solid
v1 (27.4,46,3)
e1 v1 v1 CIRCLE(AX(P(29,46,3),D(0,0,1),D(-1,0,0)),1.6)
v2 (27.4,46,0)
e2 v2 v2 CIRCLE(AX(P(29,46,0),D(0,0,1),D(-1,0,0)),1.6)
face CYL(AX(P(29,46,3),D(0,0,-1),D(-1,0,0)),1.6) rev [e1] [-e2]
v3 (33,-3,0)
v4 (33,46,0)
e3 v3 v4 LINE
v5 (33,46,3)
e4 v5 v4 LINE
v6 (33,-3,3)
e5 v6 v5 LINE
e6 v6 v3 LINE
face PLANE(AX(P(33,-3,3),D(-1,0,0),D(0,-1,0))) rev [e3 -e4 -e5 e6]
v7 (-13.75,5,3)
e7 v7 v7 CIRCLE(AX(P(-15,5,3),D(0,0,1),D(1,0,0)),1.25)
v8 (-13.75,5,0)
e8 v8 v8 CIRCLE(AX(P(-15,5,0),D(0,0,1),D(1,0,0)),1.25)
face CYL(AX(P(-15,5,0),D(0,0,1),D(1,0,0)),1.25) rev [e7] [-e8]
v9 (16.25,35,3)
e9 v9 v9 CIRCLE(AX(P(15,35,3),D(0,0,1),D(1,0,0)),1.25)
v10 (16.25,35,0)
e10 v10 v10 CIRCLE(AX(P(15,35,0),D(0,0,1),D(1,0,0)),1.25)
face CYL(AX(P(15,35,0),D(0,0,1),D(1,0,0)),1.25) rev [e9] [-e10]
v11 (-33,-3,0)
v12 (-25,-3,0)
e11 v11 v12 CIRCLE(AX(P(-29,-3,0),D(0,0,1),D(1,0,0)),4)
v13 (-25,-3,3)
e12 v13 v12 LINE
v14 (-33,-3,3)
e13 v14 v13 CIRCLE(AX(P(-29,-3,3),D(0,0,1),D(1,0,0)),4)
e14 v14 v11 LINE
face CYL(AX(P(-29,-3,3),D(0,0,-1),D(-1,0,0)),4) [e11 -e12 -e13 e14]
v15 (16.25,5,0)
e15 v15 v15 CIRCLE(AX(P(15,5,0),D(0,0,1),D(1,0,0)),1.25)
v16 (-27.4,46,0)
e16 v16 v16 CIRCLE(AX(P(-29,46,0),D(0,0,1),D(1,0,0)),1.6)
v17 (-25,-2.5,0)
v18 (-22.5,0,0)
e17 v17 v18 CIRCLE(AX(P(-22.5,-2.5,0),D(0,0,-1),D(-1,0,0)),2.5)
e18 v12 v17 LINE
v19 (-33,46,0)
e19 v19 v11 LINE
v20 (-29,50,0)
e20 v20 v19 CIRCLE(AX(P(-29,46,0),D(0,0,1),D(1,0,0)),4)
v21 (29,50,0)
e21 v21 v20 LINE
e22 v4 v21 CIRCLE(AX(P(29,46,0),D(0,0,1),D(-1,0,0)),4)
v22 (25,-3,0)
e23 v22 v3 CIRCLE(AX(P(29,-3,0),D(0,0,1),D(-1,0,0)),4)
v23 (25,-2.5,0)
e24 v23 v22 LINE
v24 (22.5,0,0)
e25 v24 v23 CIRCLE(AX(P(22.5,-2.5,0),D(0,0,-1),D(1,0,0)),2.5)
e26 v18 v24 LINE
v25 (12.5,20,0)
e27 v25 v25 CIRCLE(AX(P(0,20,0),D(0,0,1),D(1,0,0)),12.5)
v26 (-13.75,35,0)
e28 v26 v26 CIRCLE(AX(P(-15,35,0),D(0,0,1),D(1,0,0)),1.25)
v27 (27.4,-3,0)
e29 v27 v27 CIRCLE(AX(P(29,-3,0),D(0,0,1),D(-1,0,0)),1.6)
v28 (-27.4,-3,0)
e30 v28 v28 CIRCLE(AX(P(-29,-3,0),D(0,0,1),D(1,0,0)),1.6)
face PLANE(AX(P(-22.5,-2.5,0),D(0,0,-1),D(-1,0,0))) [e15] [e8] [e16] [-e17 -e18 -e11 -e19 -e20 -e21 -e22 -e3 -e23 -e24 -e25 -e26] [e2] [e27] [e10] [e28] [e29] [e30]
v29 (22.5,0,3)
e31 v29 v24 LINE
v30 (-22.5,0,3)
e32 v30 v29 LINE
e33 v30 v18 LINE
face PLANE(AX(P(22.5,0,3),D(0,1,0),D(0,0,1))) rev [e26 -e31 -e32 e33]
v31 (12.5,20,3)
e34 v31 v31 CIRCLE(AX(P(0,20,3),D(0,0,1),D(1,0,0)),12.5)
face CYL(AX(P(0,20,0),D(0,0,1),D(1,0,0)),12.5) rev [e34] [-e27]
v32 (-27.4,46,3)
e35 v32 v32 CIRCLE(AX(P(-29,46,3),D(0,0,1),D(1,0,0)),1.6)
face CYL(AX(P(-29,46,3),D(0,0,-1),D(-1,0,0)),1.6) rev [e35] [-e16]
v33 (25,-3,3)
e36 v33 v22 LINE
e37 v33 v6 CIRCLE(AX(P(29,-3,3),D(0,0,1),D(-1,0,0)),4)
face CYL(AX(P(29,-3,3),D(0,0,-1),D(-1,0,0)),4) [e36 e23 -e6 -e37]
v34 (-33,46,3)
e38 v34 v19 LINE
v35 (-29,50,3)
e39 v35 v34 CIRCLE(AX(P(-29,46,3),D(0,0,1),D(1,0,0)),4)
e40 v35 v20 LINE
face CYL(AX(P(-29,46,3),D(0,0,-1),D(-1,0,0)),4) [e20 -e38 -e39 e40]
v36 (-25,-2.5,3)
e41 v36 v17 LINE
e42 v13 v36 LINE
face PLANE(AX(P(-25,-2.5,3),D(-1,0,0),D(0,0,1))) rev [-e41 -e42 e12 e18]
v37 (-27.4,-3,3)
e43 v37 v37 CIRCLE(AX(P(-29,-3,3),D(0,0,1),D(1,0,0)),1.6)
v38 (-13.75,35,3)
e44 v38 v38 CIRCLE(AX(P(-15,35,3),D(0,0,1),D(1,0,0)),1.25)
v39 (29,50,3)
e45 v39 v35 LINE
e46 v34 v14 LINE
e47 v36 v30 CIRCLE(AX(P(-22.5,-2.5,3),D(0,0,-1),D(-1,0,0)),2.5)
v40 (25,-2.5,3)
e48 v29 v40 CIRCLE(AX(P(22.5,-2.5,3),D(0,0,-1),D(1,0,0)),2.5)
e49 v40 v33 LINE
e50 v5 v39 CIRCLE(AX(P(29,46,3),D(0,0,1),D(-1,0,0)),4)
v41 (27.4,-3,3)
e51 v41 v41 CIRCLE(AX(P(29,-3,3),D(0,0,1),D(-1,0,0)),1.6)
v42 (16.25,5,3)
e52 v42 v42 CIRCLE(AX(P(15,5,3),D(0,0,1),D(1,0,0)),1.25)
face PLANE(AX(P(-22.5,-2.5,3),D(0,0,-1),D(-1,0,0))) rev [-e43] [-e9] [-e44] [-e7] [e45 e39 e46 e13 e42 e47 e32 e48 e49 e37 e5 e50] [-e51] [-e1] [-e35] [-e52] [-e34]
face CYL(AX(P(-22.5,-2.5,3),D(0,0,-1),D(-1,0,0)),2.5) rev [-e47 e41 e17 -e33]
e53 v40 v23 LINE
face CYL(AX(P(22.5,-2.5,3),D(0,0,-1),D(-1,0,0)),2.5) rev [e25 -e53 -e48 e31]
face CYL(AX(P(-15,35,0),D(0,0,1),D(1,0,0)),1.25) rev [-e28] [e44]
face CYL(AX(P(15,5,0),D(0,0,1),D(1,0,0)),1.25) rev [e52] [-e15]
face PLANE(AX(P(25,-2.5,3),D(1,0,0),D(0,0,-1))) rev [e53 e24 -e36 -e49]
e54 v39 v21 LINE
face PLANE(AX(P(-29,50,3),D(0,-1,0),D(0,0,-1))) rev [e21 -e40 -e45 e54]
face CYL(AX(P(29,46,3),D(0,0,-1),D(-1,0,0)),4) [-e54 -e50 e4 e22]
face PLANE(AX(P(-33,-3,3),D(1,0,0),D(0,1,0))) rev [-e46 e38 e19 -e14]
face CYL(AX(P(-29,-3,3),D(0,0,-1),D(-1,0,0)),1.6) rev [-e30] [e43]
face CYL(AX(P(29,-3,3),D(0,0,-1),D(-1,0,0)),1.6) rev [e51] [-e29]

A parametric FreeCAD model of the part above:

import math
import FreeCAD as App
import Part
import Sketcher
from FreeCAD import Vector
Q = App.Units.Quantity

doc = App.newDocument("Part")
body = doc.addObject("PartDesign::Body", "Body")

sketch1 = doc.addObject("Sketcher::SketchObject", "Sketch")
body.addObject(sketch1)
sketch1.AttachmentSupport = (doc.XY_Plane, [""])
sketch1.MapMode = "FlatFace"
sketch1.addGeometry([
    Part.LineSegment(Vector(-22.5, 0, 0), Vector(22.5, 0, 0)),
    Part.ArcOfCircle(Part.Circle(Vector(22.5, -2.5, 0), Vector(0, 0, 1), 2.5), math.radians(0), math.radians(90)),
    Part.LineSegment(Vector(25, -2.5, 0), Vector(25, -3, 0)),
    Part.ArcOfCircle(Part.Circle(Vector(29, -3, 0), Vector(0, 0, 1), 4), math.radians(180), math.radians(360)),
    Part.LineSegment(Vector(33, -3, 0), Vector(33, 46, 0)),
    Part.ArcOfCircle(Part.Circle(Vector(29, 46, 0), Vector(0, 0, 1), 4), math.radians(0), math.radians(90)),
    Part.LineSegment(Vector(29, 50, 0), Vector(-29, 50, 0)),
    Part.ArcOfCircle(Part.Circle(Vector(-29, 46, 0), Vector(0, 0, 1), 4), math.radians(90), math.radians(180)),
    Part.LineSegment(Vector(-33, 46, 0), Vector(-33, -3, 0)),
    Part.ArcOfCircle(Part.Circle(Vector(-29, -3, 0), Vector(0, 0, 1), 4), math.radians(180), math.radians(360)),
    Part.LineSegment(Vector(-25, -3, 0), Vector(-25, -2.5, 0)),
    Part.ArcOfCircle(Part.Circle(Vector(-22.5, -2.5, 0), Vector(0, 0, 1), 2.5), math.radians(90), math.radians(180)),
    Part.Circle(Vector(29, -3, 0), Vector(0, 0, 1), 1.6),
    Part.Circle(Vector(-29, -3, 0), Vector(0, 0, 1), 1.6),
    Part.Circle(Vector(29, 46, 0), Vector(0, 0, 1), 1.6),
    Part.Circle(Vector(-29, 46, 0), Vector(0, 0, 1), 1.6),
], False)
sketch1.addConstraint([
    Sketcher.Constraint("Tangent", 0, 2, 1, 2),
    Sketcher.Constraint("Tangent", 1, 1, 2, 1),
    Sketcher.Constraint("Tangent", 2, 2, 3, 1),
    Sketcher.Constraint("Tangent", 3, 2, 4, 1),
    Sketcher.Constraint("Tangent", 4, 2, 5, 1),
    Sketcher.Constraint("Tangent", 5, 2, 6, 1),
    Sketcher.Constraint("Tangent", 6, 2, 7, 1),
    Sketcher.Constraint("Tangent", 7, 2, 8, 1),
    Sketcher.Constraint("Tangent", 8, 2, 9, 1),
    Sketcher.Constraint("Tangent", 9, 2, 10, 1),
    Sketcher.Constraint("Tangent", 10, 2, 11, 2),
    Sketcher.Constraint("Tangent", 11, 1, 0, 1),
    Sketcher.Constraint("Horizontal", 0),
    Sketcher.Constraint("Vertical", 2),
    Sketcher.Constraint("Vertical", 4),
    Sketcher.Constraint("Horizontal", 6),
    Sketcher.Constraint("Vertical", 8),
    Sketcher.Constraint("Vertical", 10),
    Sketcher.Constraint("Coincident", 12, 3, 3, 3),
    Sketcher.Constraint("Coincident", 13, 3, 9, 3),
    Sketcher.Constraint("Coincident", 14, 3, 5, 3),
    Sketcher.Constraint("Coincident", 15, 3, 7, 3),
    Sketcher.Constraint("Equal", 3, 5),
    Sketcher.Constraint("Equal", 5, 7),
    Sketcher.Constraint("Equal", 7, 9),
    Sketcher.Constraint("Equal", 1, 11),
    Sketcher.Constraint("Equal", 12, 13),
    Sketcher.Constraint("Equal", 13, 14),
    Sketcher.Constraint("Equal", 14, 15),
    Sketcher.Constraint("Symmetric", 0, 2, 11, 1, -1, 1),
    Sketcher.Constraint("Horizontal", 3, 3, 9, 3),
    Sketcher.Constraint("Radius", 3, Q("4 mm")),
    Sketcher.Constraint("Diameter", 12, Q("3.2 mm")),
    Sketcher.Constraint("Radius", 1, Q("2.5 mm")),
    Sketcher.Constraint("DistanceX", 0, 1, 0, 2, Q("45 mm")),
    Sketcher.Constraint("DistanceY", 4, 1, 4, 2, Q("49 mm")),
    Sketcher.Constraint("DistanceY", 2, 2, 2, 1, Q("0.5 mm")),
])
pad1 = doc.addObject("PartDesign::Pad", "Pad")
body.addObject(pad1)
pad1.Profile = sketch1
pad1.Length = 3

sketch2 = doc.addObject("Sketcher::SketchObject", "Sketch001")
body.addObject(sketch2)
sketch2.AttachmentSupport = (doc.XY_Plane, [""])
sketch2.MapMode = "FlatFace"
sketch2.AttachmentOffset = App.Placement(Vector(0, 0, 3), App.Rotation())
sketch2.addGeometry([
    Part.Circle(Vector(-15, 35, 0), Vector(0, 0, 1), 1.2),
    Part.Circle(Vector(-15, 5, 0), Vector(0, 0, 1), 1.2),
    Part.Circle(Vector(15, 5, 0), Vector(0, 0, 1), 1.2),
    Part.Circle(Vector(15, 35, 0), Vector(0, 0, 1), 1.2),
    Part.Circle(Vector(0, 20, 0), Vector(0, 0, 1), 12.5),
], False)
sketch2.addConstraint([
    Sketcher.Constraint("Equal", 0, 1),
    Sketcher.Constraint("Equal", 1, 2),
    Sketcher.Constraint("Equal", 2, 3),
    Sketcher.Constraint("Symmetric", 1, 3, 2, 3, -2),
    Sketcher.Constraint("Symmetric", 0, 3, 3, 3, -2),
    Sketcher.Constraint("PointOnObject", 4, 3, -2),
    Sketcher.Constraint("Vertical", 0, 3, 1, 3),
    Sketcher.Constraint("Diameter", 4, Q("25 mm")),
    Sketcher.Constraint("Diameter", 0, Q("2.5 mm")),
    Sketcher.Constraint("DistanceX", 0, 3, -1, 1, Q("15 mm")),
    Sketcher.Constraint("DistanceY", -1, 1, 0, 3, Q("35 mm")),
    Sketcher.Constraint("DistanceY", -1, 1, 1, 3, Q("5 mm")),
    Sketcher.Constraint("DistanceY", -1, 1, 4, 3, Q("20 mm")),
])
pocket1 = doc.addObject("PartDesign::Pocket", "Pocket")
body.addObject(pocket1)
pocket1.Profile = sketch2
pocket1.Type = "ThroughAll"

doc.recompute()
